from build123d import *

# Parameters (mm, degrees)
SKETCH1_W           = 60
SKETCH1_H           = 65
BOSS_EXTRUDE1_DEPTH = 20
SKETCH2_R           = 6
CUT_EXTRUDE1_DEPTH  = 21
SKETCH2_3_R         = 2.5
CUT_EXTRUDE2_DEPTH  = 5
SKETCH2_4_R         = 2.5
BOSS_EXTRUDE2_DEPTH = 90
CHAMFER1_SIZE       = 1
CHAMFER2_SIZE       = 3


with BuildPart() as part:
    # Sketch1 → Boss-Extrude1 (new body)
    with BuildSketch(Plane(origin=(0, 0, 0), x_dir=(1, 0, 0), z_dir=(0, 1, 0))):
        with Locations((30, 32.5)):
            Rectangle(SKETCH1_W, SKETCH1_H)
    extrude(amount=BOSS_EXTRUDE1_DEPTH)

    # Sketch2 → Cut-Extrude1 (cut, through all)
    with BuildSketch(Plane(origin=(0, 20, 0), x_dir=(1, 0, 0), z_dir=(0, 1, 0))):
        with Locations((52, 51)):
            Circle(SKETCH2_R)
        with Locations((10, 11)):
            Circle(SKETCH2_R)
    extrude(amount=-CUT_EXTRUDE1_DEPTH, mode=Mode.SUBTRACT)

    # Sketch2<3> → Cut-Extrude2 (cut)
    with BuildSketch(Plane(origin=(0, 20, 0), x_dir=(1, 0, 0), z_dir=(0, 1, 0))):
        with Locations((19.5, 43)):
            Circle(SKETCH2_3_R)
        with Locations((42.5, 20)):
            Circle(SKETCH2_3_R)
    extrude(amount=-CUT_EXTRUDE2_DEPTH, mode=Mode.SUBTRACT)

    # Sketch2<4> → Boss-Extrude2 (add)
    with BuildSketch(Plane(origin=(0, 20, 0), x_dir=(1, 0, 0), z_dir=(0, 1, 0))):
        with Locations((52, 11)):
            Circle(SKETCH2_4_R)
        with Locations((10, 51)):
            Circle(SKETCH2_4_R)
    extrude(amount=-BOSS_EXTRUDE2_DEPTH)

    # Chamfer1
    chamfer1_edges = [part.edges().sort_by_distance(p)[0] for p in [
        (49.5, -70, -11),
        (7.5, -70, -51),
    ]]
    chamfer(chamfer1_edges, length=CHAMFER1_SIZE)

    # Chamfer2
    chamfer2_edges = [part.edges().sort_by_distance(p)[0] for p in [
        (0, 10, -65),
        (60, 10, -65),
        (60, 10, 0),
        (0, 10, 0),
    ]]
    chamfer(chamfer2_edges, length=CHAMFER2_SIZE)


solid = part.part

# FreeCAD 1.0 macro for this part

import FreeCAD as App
import Part
import Sketcher
Q = App.Units.Quantity


def edges_at(feature, points):
    """Names of the edges that pass closest to the given points."""
    edges = feature.Shape.Edges
    near = lambda p: min(range(len(edges)), key=lambda i: edges[i].distToShape(Part.Vertex(*p))[0])
    return sorted({f"Edge{near(p) + 1}" for p in points})

doc = App.newDocument("Part")
body = doc.addObject("PartDesign::Body", "Body")

sketch1 = body.newObject("Sketcher::SketchObject", "Sketch")
sketch1.AttachmentSupport = (doc.getObject("XZ_Plane"), [""])
sketch1.MapMode = "FlatFace"
sketch1.addGeometry(Part.LineSegment(App.Vector(0, -65, 0), App.Vector(0, 0, 0)), False)
sketch1.addGeometry(Part.LineSegment(App.Vector(0, 0, 0), App.Vector(60, 0, 0)), False)
sketch1.addGeometry(Part.LineSegment(App.Vector(60, 0, 0), App.Vector(60, -65, 0)), False)
sketch1.addGeometry(Part.LineSegment(App.Vector(60, -65, 0), App.Vector(0, -65, 0)), False)
sketch1.addConstraint(Sketcher.Constraint("Coincident", 0, 2, 1, 1))
sketch1.addConstraint(Sketcher.Constraint("Coincident", 1, 2, 2, 1))
sketch1.addConstraint(Sketcher.Constraint("Coincident", 2, 2, 3, 1))
sketch1.addConstraint(Sketcher.Constraint("Coincident", 3, 2, 0, 1))
sketch1.addConstraint(Sketcher.Constraint("Vertical", 0))
sketch1.addConstraint(Sketcher.Constraint("Horizontal", 1))
sketch1.addConstraint(Sketcher.Constraint("Vertical", 2))
sketch1.addConstraint(Sketcher.Constraint("Horizontal", 3))
sketch1.addConstraint(Sketcher.Constraint("Coincident", 0, 2, -1, 1))
sketch1.addConstraint(Sketcher.Constraint("DistanceX", 1, 1, 1, 2, Q("60 mm")))
sketch1.addConstraint(Sketcher.Constraint("DistanceY", 0, 1, 0, 2, Q("65 mm")))
pad1 = body.newObject("PartDesign::Pad", "Pad")
pad1.Profile = sketch1
pad1.Length = 20
pad1.Reversed = True

sketch2 = body.newObject("Sketcher::SketchObject", "Sketch001")
sketch2.AttachmentSupport = (doc.getObject("XZ_Plane"), [""])
sketch2.MapMode = "FlatFace"
sketch2.AttachmentOffset = App.Placement(App.Vector(0, 0, -20), App.Rotation())
sketch2.addGeometry(Part.Circle(App.Vector(52, -51, 0), App.Vector(0, 0, 1), 6), False)
sketch2.addGeometry(Part.Circle(App.Vector(10, -11, 0), App.Vector(0, 0, 1), 6), False)
sketch2.addConstraint(Sketcher.Constraint("Equal", 0, 1))
sketch2.addConstraint(Sketcher.Constraint("Diameter", 0, Q("12 mm")))
sketch2.addConstraint(Sketcher.Constraint("DistanceX", -1, 1, 0, 3, Q("52 mm")))
sketch2.addConstraint(Sketcher.Constraint("DistanceY", 0, 3, -1, 1, Q("51 mm")))
sketch2.addConstraint(Sketcher.Constraint("DistanceX", -1, 1, 1, 3, Q("10 mm")))
sketch2.addConstraint(Sketcher.Constraint("DistanceY", 1, 3, -1, 1, Q("11 mm")))
pocket1 = body.newObject("PartDesign::Pocket", "Pocket")
pocket1.Profile = sketch2
pocket1.Type = "ThroughAll"
pocket1.Reversed = True

sketch3 = body.newObject("Sketcher::SketchObject", "Sketch002")
sketch3.AttachmentSupport = (doc.getObject("XZ_Plane"), [""])
sketch3.MapMode = "FlatFace"
sketch3.AttachmentOffset = App.Placement(App.Vector(0, 0, -20), App.Rotation())
sketch3.addGeometry(Part.Circle(App.Vector(19.5, -43, 0), App.Vector(0, 0, 1), 2.5), False)
sketch3.addGeometry(Part.Circle(App.Vector(42.5, -20, 0), App.Vector(0, 0, 1), 2.5), False)
sketch3.addConstraint(Sketcher.Constraint("Equal", 0, 1))
sketch3.addConstraint(Sketcher.Constraint("Diameter", 0, Q("5 mm")))
sketch3.addConstraint(Sketcher.Constraint("DistanceY", 0, 3, -1, 1, Q("43 mm")))
sketch3.addConstraint(Sketcher.Constraint("DistanceY", 1, 3, -1, 1, Q("20 mm")))
sketch3.addConstraint(Sketcher.Constraint("DistanceX", 0, 3, 1, 3, Q("23 mm")))
sketch3.addConstraint(Sketcher.Constraint("DistanceX", -1, 1, 0, 3, Q("19.5 mm")))
pocket2 = body.newObject("PartDesign::Pocket", "Pocket001")
pocket2.Profile = sketch3
pocket2.Length = 5
pocket2.Reversed = True

sketch4 = body.newObject("Sketcher::SketchObject", "Sketch003")
sketch4.AttachmentSupport = (doc.getObject("XZ_Plane"), [""])
sketch4.MapMode = "FlatFace"
sketch4.AttachmentOffset = App.Placement(App.Vector(0, 0, -20), App.Rotation())
sketch4.addGeometry(Part.Circle(App.Vector(52, -11, 0), App.Vector(0, 0, 1), 2.5), False)
sketch4.addGeometry(Part.Circle(App.Vector(10, -51, 0), App.Vector(0, 0, 1), 2.5), False)
sketch4.addConstraint(Sketcher.Constraint("Equal", 0, 1))
sketch4.addConstraint(Sketcher.Constraint("Diameter", 0, Q("5 mm")))
sketch4.addConstraint(Sketcher.Constraint("DistanceX", -1, 1, 0, 3, Q("52 mm")))
sketch4.addConstraint(Sketcher.Constraint("DistanceY", 0, 3, -1, 1, Q("11 mm")))
sketch4.addConstraint(Sketcher.Constraint("DistanceX", -1, 1, 1, 3, Q("10 mm")))
sketch4.addConstraint(Sketcher.Constraint("DistanceY", 1, 3, -1, 1, Q("51 mm")))
pad2 = body.newObject("PartDesign::Pad", "Pad001")
pad2.Profile = sketch4
pad2.Length = 90
doc.recompute()

chamfer = body.newObject("PartDesign::Chamfer", "Chamfer")
chamfer.Base = (pad2, edges_at(pad2, [(49.5, -70, -11), (7.5, -70, -51)]))
chamfer.Size = 1
doc.recompute()

chamfer2 = body.newObject("PartDesign::Chamfer", "Chamfer001")
chamfer2.Base = (chamfer, edges_at(chamfer, [
    (0, 10, -65),
    (60, 10, -65),
    (60, 10, 0),
    (0, 10, 0),
]))
chamfer2.Size = 3

doc.recompute()
